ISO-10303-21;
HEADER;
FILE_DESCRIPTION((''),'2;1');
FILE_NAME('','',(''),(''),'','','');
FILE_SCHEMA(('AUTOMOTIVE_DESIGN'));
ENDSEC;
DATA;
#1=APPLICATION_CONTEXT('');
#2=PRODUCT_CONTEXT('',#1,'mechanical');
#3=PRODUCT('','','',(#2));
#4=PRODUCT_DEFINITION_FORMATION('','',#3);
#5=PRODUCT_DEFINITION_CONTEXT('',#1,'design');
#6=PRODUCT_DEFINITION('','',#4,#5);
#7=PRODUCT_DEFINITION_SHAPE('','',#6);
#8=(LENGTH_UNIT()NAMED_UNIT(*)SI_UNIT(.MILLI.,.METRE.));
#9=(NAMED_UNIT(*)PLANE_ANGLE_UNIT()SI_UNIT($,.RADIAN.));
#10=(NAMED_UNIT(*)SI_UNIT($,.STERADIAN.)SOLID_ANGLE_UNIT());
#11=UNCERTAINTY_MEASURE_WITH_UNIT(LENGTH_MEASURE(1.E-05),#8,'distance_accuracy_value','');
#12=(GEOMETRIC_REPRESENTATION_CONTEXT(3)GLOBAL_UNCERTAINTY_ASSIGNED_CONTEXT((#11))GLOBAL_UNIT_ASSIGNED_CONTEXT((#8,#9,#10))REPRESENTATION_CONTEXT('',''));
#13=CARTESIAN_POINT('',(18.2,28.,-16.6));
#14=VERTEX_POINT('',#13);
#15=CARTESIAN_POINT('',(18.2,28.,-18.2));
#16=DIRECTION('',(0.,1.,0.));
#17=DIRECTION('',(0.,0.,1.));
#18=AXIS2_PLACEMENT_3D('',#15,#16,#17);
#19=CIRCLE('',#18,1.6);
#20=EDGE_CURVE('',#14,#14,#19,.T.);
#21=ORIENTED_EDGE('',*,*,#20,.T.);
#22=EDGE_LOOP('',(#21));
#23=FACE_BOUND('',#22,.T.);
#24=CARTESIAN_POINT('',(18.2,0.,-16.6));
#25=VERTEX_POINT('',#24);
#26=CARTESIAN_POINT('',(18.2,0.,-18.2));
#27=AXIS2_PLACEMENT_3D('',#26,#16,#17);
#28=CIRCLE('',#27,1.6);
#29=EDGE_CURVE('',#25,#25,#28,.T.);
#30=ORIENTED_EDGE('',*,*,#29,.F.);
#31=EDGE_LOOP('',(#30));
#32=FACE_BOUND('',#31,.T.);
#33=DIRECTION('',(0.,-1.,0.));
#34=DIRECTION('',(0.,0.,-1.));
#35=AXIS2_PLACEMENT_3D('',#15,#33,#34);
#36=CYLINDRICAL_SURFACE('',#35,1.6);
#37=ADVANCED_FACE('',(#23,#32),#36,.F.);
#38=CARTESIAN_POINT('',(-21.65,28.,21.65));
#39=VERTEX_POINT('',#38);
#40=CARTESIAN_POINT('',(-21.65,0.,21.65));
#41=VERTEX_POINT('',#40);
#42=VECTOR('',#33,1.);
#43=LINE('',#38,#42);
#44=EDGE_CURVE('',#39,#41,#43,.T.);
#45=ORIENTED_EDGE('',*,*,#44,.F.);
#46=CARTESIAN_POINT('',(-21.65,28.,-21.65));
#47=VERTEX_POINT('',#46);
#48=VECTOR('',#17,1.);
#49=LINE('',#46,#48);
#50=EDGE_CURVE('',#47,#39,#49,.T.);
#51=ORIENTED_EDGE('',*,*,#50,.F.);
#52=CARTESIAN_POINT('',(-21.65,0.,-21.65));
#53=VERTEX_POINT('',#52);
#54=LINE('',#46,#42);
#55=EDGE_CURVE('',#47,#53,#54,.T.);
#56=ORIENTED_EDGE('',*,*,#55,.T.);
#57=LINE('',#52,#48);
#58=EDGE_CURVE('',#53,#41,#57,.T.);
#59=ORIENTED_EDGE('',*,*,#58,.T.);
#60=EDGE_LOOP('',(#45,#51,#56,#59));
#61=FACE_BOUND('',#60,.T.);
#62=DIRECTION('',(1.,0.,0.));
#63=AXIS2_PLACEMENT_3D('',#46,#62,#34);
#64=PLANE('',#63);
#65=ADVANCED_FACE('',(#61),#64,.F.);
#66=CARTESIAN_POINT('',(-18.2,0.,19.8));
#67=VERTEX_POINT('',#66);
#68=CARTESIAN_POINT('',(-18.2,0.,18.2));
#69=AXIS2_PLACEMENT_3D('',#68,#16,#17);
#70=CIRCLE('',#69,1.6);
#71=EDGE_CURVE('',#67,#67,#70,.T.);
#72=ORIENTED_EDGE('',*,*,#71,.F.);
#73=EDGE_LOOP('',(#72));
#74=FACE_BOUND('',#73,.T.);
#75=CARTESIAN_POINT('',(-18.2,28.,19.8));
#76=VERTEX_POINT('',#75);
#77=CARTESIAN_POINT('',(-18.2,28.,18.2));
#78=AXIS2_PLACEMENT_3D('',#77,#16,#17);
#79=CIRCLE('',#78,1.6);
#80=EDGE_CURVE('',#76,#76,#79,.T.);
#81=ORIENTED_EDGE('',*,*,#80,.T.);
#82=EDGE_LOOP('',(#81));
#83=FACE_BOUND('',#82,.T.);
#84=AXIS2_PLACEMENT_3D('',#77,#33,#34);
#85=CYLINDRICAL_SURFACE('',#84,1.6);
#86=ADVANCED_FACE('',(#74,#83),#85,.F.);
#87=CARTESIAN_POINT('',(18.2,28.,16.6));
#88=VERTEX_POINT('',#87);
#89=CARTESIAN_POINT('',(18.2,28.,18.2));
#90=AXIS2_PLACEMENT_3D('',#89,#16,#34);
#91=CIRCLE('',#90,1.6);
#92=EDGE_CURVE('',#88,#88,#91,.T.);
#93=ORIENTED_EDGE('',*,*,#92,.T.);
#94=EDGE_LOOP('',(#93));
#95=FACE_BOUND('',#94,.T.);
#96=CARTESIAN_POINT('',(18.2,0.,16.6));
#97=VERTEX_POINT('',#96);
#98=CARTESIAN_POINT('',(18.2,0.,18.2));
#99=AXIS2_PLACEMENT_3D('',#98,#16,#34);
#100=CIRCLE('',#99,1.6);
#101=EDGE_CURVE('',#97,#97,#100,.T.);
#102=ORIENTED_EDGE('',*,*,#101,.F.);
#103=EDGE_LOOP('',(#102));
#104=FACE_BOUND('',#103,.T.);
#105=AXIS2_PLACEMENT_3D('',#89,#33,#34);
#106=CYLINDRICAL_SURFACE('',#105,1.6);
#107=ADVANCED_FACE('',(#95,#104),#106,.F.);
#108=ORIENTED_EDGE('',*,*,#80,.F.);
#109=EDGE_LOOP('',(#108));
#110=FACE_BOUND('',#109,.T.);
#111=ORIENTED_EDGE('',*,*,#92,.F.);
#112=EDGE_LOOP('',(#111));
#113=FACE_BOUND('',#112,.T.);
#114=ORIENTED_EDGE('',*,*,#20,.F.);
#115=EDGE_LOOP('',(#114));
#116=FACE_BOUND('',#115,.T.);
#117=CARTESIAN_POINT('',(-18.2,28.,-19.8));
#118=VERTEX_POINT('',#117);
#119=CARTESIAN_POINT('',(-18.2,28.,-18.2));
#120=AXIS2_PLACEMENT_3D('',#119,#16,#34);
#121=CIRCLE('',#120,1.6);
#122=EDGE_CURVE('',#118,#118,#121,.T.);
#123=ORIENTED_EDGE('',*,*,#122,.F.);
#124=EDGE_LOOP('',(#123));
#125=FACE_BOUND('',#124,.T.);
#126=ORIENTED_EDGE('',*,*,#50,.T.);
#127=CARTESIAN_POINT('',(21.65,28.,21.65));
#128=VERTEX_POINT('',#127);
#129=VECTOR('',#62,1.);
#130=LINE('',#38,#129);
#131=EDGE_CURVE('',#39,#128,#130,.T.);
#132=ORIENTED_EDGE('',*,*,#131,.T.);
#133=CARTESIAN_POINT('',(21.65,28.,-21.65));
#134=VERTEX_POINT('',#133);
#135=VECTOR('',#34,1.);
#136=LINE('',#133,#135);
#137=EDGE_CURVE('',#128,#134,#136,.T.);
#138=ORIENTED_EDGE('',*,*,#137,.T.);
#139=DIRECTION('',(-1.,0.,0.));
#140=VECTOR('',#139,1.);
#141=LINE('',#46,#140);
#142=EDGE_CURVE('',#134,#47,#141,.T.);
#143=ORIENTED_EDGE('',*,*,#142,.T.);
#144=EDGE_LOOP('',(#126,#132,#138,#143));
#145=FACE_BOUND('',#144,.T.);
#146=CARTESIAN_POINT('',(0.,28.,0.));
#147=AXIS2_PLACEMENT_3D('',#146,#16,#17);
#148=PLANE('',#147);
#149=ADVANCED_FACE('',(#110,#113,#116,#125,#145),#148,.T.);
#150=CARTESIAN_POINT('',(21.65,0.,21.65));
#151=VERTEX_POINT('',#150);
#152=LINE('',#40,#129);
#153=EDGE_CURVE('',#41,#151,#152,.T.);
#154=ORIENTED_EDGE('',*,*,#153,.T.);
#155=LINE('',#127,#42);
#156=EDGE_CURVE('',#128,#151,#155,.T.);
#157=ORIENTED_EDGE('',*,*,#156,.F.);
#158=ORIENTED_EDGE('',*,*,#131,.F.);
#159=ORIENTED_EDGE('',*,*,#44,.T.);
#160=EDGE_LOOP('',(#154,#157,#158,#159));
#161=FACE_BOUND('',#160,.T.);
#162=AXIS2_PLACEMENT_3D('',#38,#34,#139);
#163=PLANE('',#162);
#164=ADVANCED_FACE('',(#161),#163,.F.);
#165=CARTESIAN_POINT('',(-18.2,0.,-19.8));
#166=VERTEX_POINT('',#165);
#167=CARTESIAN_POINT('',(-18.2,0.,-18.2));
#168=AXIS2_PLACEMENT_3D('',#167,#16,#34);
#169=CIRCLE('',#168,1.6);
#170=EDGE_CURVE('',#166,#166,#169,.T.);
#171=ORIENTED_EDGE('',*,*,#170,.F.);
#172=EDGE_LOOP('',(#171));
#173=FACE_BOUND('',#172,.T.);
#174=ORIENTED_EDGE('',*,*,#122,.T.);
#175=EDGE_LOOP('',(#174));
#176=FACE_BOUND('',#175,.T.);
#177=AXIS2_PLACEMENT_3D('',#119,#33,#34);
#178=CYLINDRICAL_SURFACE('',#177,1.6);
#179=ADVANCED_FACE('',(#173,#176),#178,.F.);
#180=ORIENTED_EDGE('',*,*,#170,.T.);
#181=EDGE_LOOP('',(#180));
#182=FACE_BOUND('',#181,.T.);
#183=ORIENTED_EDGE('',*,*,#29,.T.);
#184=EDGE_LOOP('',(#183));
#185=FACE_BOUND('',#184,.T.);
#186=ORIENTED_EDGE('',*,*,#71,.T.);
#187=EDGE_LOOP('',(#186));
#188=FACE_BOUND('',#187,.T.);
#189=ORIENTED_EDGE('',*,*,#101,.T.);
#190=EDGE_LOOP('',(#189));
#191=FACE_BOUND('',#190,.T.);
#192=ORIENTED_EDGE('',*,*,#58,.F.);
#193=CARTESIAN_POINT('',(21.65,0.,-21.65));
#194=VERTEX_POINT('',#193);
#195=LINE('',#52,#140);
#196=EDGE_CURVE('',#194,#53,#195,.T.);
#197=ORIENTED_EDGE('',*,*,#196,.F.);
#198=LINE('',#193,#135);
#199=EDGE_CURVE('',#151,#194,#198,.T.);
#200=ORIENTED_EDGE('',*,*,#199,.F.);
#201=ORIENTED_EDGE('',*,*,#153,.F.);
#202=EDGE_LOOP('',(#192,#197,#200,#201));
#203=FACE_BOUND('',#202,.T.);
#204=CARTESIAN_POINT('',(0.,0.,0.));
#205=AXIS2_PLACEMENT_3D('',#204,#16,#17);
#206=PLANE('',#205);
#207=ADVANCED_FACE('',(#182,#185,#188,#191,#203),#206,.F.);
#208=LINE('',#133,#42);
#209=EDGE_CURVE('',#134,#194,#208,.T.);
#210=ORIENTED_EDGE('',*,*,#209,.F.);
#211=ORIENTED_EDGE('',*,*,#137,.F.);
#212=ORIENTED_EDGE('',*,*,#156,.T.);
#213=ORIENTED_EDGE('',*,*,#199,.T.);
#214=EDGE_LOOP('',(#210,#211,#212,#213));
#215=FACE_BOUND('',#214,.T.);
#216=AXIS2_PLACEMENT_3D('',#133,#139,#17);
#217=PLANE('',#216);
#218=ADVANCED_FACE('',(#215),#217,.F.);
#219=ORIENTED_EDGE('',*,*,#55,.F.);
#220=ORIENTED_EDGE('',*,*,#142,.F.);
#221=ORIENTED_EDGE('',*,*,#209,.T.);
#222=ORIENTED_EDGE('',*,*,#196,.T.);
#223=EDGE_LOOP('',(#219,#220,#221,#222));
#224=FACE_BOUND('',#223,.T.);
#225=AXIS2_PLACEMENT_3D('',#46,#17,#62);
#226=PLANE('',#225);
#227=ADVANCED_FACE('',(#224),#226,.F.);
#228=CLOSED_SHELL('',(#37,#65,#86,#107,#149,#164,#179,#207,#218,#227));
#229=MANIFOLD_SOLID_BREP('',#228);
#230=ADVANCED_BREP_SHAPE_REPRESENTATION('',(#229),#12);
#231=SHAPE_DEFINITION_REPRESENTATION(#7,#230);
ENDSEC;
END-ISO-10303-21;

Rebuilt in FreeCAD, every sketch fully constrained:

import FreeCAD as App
import Part
import Sketcher
from FreeCAD import Vector


def add_polygon(sketch, points):
    """Adds a closed chain of lines whose ends are joined by coincident constraints."""
    first, n = sketch.GeometryCount, len(points)
    for a, b in zip(points, points[1:] + points[:1]):
        sketch.addGeometry(Part.LineSegment(App.Vector(*a, 0), App.Vector(*b, 0)), False)
    for i in range(n):
        sketch.addConstraint(Sketcher.Constraint("Coincident", first + i, 2, first + (i + 1) % n, 1))

doc = App.newDocument("Part")
body = doc.addObject("PartDesign::Body", "Body")

# Sketch on XZ plane
sketch1 = doc.addObject("Sketcher::SketchObject", "Sketch")
body.addObject(sketch1)
sketch1.AttachmentSupport = (doc.XZ_Plane, [""])
sketch1.MapMode = "FlatFace"
add_polygon(sketch1, [(-21.6, -21.6), (-21.6, 21.6), (21.6, 21.6), (21.6, -21.6)])  # lines 0-3
sketch1.addGeometry(Part.Circle(Vector(-18.2, 18.2, 0), Vector(0, 0, 1), 1.6), False)  # 4
sketch1.addGeometry(Part.Circle(Vector(18.2, 18.2, 0), Vector(0, 0, 1), 1.6), False)  # 5
sketch1.addGeometry(Part.Circle(Vector(-18.2, -18.2, 0), Vector(0, 0, 1), 1.6), False)  # 6
sketch1.addGeometry(Part.Circle(Vector(18.2, -18.2, 0), Vector(0, 0, 1), 1.6), False)  # 7
sketch1.addConstraint(Sketcher.Constraint("Vertical", 0))
sketch1.addConstraint(Sketcher.Constraint("Horizontal", 1))
sketch1.addConstraint(Sketcher.Constraint("Vertical", 2))
sketch1.addConstraint(Sketcher.Constraint("Horizontal", 3))
sketch1.addConstraint(Sketcher.Constraint("Equal", 4, 5))
sketch1.addConstraint(Sketcher.Constraint("Equal", 5, 6))
sketch1.addConstraint(Sketcher.Constraint("Equal", 6, 7))
sketch1.addConstraint(Sketcher.Constraint("Symmetric", 5, 3, 6, 3, -1, 1))
sketch1.addConstraint(Sketcher.Constraint("Symmetric", 4, 3, 7, 3, -1, 1))
sketch1.addConstraint(Sketcher.Constraint("Symmetric", 0, 2, 2, 2, -1, 1))
sketch1.addConstraint(Sketcher.Constraint("Symmetric", 4, 3, 5, 3, -2))
sketch1.addConstraint(Sketcher.Constraint("Equal", 3, 0))
sketch1.addConstraint(Sketcher.Constraint("Diameter", 4, 3.2))
sketch1.addConstraint(Sketcher.Constraint("DistanceX", 1, 1, 1, 2, 43.3))
sketch1.addConstraint(Sketcher.Constraint("DistanceX", 4, 3, -1, 1, 18.2))
sketch1.addConstraint(Sketcher.Constraint("DistanceY", -1, 1, 4, 3, 18.2))
pad1 = doc.addObject("PartDesign::Pad", "Pad")
body.addObject(pad1)
pad1.Profile = sketch1
pad1.Length = 28
pad1.Reversed = True

doc.recompute()
